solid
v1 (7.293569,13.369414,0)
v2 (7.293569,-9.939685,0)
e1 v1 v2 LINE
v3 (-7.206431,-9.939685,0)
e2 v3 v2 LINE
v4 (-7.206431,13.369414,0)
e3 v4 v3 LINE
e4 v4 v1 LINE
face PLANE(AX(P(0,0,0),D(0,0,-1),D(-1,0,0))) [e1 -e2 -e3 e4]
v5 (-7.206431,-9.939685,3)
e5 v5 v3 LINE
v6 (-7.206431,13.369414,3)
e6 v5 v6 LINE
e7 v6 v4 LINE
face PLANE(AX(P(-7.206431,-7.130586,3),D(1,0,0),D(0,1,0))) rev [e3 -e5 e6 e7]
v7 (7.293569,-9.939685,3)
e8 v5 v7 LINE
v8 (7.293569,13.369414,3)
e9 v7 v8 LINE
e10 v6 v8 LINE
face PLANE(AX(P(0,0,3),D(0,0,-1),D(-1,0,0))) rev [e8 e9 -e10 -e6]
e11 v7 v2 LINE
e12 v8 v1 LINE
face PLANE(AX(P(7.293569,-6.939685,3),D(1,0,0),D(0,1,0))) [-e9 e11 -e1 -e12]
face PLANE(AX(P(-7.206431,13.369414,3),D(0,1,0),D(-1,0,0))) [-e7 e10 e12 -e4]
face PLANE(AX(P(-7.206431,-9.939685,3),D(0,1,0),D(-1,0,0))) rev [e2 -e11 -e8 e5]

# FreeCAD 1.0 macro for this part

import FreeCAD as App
import Part
import Sketcher
from FreeCAD import Vector
Q = App.Units.Quantity

doc = App.newDocument("Part")
body = doc.addObject("PartDesign::Body", "Body")

# Sketch on XY plane
sketch1 = doc.addObject("Sketcher::SketchObject", "Sketch")
body.addObject(sketch1)
sketch1.AttachmentSupport = (doc.XY_Plane, [""])
sketch1.MapMode = "FlatFace"
sketch1.addGeometry(Part.LineSegment(Vector(-7, 13, 0), Vector(-7, -10, 0)), False)
sketch1.addGeometry(Part.LineSegment(Vector(-7, -10, 0), Vector(7, -10, 0)), False)
sketch1.addGeometry(Part.LineSegment(Vector(7, -10, 0), Vector(7, 13, 0)), False)
sketch1.addGeometry(Part.LineSegment(Vector(7, 13, 0), Vector(-7, 13, 0)), False)
sketch1.addConstraint(Sketcher.Constraint("Coincident", 0, 2, 1, 1))
sketch1.addConstraint(Sketcher.Constraint("Coincident", 1, 2, 2, 1))
sketch1.addConstraint(Sketcher.Constraint("Coincident", 2, 2, 3, 1))
sketch1.addConstraint(Sketcher.Constraint("Coincident", 3, 2, 0, 1))
sketch1.addConstraint(Sketcher.Constraint("Vertical", 0))
sketch1.addConstraint(Sketcher.Constraint("Horizontal", 1))
sketch1.addConstraint(Sketcher.Constraint("Vertical", 2))
sketch1.addConstraint(Sketcher.Constraint("Horizontal", 3))
sketch1.addConstraint(Sketcher.Constraint("DistanceX", 1, 1, 1, 2, Q("14.5 mm")))
sketch1.addConstraint(Sketcher.Constraint("DistanceY", 0, 2, 0, 1, Q("23.3091 mm")))
sketch1.addConstraint(Sketcher.Constraint("DistanceX", 0, 2, -1, 1, Q("7.206431 mm")))
sketch1.addConstraint(Sketcher.Constraint("DistanceY", 0, 2, -1, 1, Q("9.939685 mm")))
pad1 = doc.addObject("PartDesign::Pad", "Pad")
body.addObject(pad1)
pad1.Profile = sketch1
pad1.Length = 3

doc.recompute()
